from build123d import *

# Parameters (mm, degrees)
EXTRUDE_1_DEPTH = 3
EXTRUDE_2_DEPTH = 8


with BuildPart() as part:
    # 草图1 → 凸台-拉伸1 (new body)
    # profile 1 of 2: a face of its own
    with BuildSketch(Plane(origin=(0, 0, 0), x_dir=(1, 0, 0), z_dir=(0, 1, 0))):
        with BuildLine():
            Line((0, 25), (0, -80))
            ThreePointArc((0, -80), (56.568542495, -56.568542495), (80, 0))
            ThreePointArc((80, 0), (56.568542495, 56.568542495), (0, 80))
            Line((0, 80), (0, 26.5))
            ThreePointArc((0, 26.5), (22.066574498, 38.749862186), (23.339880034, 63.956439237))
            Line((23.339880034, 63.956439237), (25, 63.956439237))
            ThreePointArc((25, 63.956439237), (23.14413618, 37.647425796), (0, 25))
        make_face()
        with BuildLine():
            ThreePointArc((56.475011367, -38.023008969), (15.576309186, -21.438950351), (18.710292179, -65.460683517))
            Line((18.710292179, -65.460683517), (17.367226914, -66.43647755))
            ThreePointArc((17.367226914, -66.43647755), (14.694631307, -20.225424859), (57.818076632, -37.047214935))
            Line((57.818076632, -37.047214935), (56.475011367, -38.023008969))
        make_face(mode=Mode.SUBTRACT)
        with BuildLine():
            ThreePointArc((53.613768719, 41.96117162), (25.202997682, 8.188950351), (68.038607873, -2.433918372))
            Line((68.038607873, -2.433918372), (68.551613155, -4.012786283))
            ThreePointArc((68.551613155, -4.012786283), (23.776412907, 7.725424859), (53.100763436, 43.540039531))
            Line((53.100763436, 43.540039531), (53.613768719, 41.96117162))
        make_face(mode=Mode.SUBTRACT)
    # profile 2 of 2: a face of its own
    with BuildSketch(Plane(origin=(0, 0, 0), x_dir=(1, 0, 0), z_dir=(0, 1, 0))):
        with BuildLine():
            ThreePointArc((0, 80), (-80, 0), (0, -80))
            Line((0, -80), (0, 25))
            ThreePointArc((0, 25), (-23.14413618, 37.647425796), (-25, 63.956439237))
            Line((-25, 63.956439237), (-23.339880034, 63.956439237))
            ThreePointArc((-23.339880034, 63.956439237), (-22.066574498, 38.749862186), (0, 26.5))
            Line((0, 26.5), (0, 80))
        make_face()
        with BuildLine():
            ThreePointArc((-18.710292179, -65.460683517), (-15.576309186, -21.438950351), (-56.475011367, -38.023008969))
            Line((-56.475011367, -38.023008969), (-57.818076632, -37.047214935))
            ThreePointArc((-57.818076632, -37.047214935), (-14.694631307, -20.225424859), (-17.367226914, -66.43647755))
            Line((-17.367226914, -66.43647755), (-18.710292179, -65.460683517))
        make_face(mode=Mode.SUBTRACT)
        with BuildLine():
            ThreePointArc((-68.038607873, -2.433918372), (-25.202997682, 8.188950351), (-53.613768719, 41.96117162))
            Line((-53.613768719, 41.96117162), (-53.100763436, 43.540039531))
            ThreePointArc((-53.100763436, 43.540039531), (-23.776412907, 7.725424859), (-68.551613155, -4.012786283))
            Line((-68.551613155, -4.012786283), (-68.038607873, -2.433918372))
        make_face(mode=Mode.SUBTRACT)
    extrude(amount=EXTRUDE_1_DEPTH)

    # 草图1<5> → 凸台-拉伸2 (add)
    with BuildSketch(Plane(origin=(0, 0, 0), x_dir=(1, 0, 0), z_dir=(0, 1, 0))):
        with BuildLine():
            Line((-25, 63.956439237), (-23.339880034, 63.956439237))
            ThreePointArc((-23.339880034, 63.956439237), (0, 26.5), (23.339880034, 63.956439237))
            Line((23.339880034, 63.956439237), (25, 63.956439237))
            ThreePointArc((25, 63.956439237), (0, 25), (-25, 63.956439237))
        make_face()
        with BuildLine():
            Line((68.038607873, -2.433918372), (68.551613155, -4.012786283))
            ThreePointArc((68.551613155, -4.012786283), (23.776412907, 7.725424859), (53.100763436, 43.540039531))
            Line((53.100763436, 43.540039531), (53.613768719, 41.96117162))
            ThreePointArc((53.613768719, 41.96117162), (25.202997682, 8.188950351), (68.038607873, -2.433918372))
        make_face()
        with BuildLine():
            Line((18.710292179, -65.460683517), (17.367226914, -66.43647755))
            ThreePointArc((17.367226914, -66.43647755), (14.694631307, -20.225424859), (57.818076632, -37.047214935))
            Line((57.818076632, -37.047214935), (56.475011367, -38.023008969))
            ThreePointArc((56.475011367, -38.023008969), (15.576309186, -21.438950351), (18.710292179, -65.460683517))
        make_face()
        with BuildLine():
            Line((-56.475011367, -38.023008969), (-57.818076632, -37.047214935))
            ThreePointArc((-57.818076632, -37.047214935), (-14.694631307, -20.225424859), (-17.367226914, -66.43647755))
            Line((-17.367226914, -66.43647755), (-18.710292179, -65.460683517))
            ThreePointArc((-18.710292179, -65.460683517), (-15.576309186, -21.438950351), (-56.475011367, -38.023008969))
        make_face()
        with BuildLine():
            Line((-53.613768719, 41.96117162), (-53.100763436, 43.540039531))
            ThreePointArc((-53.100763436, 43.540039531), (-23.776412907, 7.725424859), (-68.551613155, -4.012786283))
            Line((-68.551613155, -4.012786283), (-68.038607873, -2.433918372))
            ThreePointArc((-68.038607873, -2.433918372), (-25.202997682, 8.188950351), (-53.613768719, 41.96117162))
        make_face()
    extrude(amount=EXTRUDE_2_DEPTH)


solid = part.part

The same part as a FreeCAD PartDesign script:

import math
import FreeCAD as App
import Part
import Sketcher
from FreeCAD import Vector
Q = App.Units.Quantity

doc = App.newDocument("Part")
params = doc.addObject("Spreadsheet::Sheet", "Params")
for row, (alias, value) in enumerate([
    ("sketch1_radius", "80 mm"),
    ("sketch1_radius2", "26 mm"),
    ("sketch1_radius3", "27.5 mm"),
    ("pad1_length", "3 mm"),
    ("sketch2_radius", "26 mm"),
    ("sketch2_radius2", "27.5 mm"),
    ("pad2_length", "8 mm"),
], start=1):
    params.set(f"A{row}", alias)
    params.set(f"B{row}", "=" + value)
    params.setAlias(f"B{row}", alias)

body = doc.addObject("PartDesign::Body", "Body")

sketch1 = body.newObject("Sketcher::SketchObject", "Sketch")
sketch1.AttachmentSupport = (doc.getObject("XZ_Plane"), [""])
sketch1.MapMode = "FlatFace"
sketch1.addGeometry([
    Part.ArcOfCircle(Part.Circle(Vector(0, 0, 0), Vector(0, 0, 1), 80), math.radians(0), math.radians(90)),
    Part.ArcOfCircle(Part.Circle(Vector(0, 0, 0), Vector(0, 0, 1), 80), math.radians(-90), math.radians(0)),
    Part.ArcOfCircle(Part.Circle(Vector(0, 0, 0), Vector(0, 0, 1), 80), math.radians(90), math.radians(270)),
    Part.ArcOfCircle(Part.Circle(Vector(0, -52.5, 0), Vector(0, 0, 1), 27.5), math.radians(-24.619977), math.radians(90)),
    Part.ArcOfCircle(Part.Circle(Vector(0, -52.5, 0), Vector(0, 0, 1), 27.5), math.radians(90), math.radians(204.619977)),
    Part.LineSegment(Vector(-25, -63.956439, 0), Vector(-23.33988, -63.956439, 0)),
    Part.ArcOfCircle(Part.Circle(Vector(0, -52.5, 0), Vector(0, 0, 1), 26), math.radians(90), math.radians(206.14423)),
    Part.ArcOfCircle(Part.Circle(Vector(0, -52.5, 0), Vector(0, 0, 1), 26), math.radians(-26.14423), math.radians(90)),
    Part.LineSegment(Vector(23.33988, -63.956439, 0), Vector(25, -63.956439, 0)),
    Part.LineSegment(Vector(57.818077, 37.047215, 0), Vector(56.475011, 38.023009, 0)),
    Part.ArcOfCircle(Part.Circle(Vector(30.858726, 42.473392, 0), Vector(0, 0, 1), 26), math.radians(117.85577), math.radians(350.14423)),
    Part.LineSegment(Vector(18.710292, 65.460684, 0), Vector(17.367227, 66.436478, 0)),
    Part.ArcOfCircle(Part.Circle(Vector(30.858726, 42.473392, 0), Vector(0, 0, 1), 27.5), math.radians(119.380023), math.radians(348.619977)),
    Part.LineSegment(Vector(53.100763, -43.54004, 0), Vector(53.613769, -41.961172, 0)),
    Part.ArcOfCircle(Part.Circle(Vector(49.930467, -16.223392, 0), Vector(0, 0, 1), 26), math.radians(45.85577), math.radians(278.14423)),
    Part.LineSegment(Vector(68.038608, 2.433918, 0), Vector(68.551613, 4.012786, 0)),
    Part.ArcOfCircle(Part.Circle(Vector(49.930467, -16.223392, 0), Vector(0, 0, 1), 27.5), math.radians(47.380023), math.radians(276.619977)),
    Part.LineSegment(Vector(-53.613769, -41.961172, 0), Vector(-53.100763, -43.54004, 0)),
    Part.ArcOfCircle(Part.Circle(Vector(-49.930467, -16.223392, 0), Vector(0, 0, 1), 27.5), math.radians(-96.619977), math.radians(132.619977)),
    Part.LineSegment(Vector(-68.551613, 4.012786, 0), Vector(-68.038608, 2.433918, 0)),
    Part.ArcOfCircle(Part.Circle(Vector(-49.930467, -16.223392, 0), Vector(0, 0, 1), 26), math.radians(-98.14423), math.radians(134.14423)),
    Part.LineSegment(Vector(-17.367227, 66.436478, 0), Vector(-18.710292, 65.460684, 0)),
    Part.ArcOfCircle(Part.Circle(Vector(-30.858726, 42.473392, 0), Vector(0, 0, 1), 26), math.radians(-170.14423), math.radians(62.14423)),
    Part.LineSegment(Vector(-56.475011, 38.023009, 0), Vector(-57.818077, 37.047215, 0)),
    Part.ArcOfCircle(Part.Circle(Vector(-30.858726, 42.473392, 0), Vector(0, 0, 1), 27.5), math.radians(-168.619977), math.radians(60.619977)),
], False)
sketch1.addConstraint([
    Sketcher.Constraint("Tangent", 0, 1, 1, 2),
    Sketcher.Constraint("Tangent", 1, 1, 2, 2),
    Sketcher.Constraint("Tangent", 2, 1, 0, 2),
    Sketcher.Constraint("Tangent", 3, 2, 4, 1),
    Sketcher.Constraint("Coincident", 4, 2, 5, 1),
    Sketcher.Constraint("Coincident", 5, 2, 6, 2),
    Sketcher.Constraint("Tangent", 6, 1, 7, 2),
    Sketcher.Constraint("Coincident", 7, 1, 8, 1),
    Sketcher.Constraint("Coincident", 8, 2, 3, 1),
    Sketcher.Constraint("Coincident", 9, 2, 10, 2),
    Sketcher.Constraint("Coincident", 10, 1, 11, 1),
    Sketcher.Constraint("Coincident", 11, 2, 12, 1),
    Sketcher.Constraint("Coincident", 12, 2, 9, 1),
    Sketcher.Constraint("Coincident", 13, 2, 14, 2),
    Sketcher.Constraint("Coincident", 14, 1, 15, 1),
    Sketcher.Constraint("Coincident", 15, 2, 16, 1),
    Sketcher.Constraint("Coincident", 16, 2, 13, 1),
    Sketcher.Constraint("Coincident", 17, 2, 18, 1),
    Sketcher.Constraint("Coincident", 18, 2, 19, 1),
    Sketcher.Constraint("Coincident", 19, 2, 20, 2),
    Sketcher.Constraint("Coincident", 20, 1, 17, 1),
    Sketcher.Constraint("Coincident", 21, 2, 22, 2),
    Sketcher.Constraint("Coincident", 22, 1, 23, 1),
    Sketcher.Constraint("Coincident", 23, 2, 24, 1),
    Sketcher.Constraint("Coincident", 24, 2, 21, 1),
    Sketcher.Constraint("Horizontal", 5),
    Sketcher.Constraint("Horizontal", 8),
    Sketcher.Constraint("Coincident", 0, 3, -1, 1),
    Sketcher.Constraint("Coincident", 6, 3, 3, 3),
    Sketcher.Constraint("Coincident", 12, 3, 10, 3),
    Sketcher.Constraint("Coincident", 16, 3, 14, 3),
    Sketcher.Constraint("Coincident", 20, 3, 18, 3),
    Sketcher.Constraint("Coincident", 24, 3, 22, 3),
    Sketcher.Constraint("Equal", 3, 4),
    Sketcher.Constraint("Equal", 6, 7),
    Sketcher.Constraint("Equal", 7, 10),
    Sketcher.Constraint("Equal", 4, 12),
    Sketcher.Constraint("Equal", 10, 14),
    Sketcher.Constraint("Equal", 12, 16),
    Sketcher.Constraint("Equal", 16, 18),
    Sketcher.Constraint("Equal", 14, 20),
    Sketcher.Constraint("Equal", 20, 22),
    Sketcher.Constraint("Equal", 18, 24),
    Sketcher.Constraint("Symmetric", 14, 3, 18, 3, -2),
    Sketcher.Constraint("Symmetric", 10, 3, 22, 3, -2),
    Sketcher.Constraint("Symmetric", 5, 2, 7, 1, -2),
    Sketcher.Constraint("PointOnObject", 0, 1, -1),
    Sketcher.Constraint("PointOnObject", 1, 1, -2),
    Sketcher.Constraint("PointOnObject", 2, 1, -2),
    Sketcher.Constraint("PointOnObject", 3, 2, -2),
    Sketcher.Constraint("PointOnObject", 6, 1, -2),
    Sketcher.Constraint("Parallel", 9, 11),
    Sketcher.Constraint("Parallel", 13, 15),
    Sketcher.Constraint("Parallel", 17, 19),
    Sketcher.Constraint("Parallel", 21, 23),
    Sketcher.Constraint("Horizontal", 16, 2, 17, 2),
    Sketcher.Constraint("Horizontal", 15, 2, 18, 2),
    Sketcher.Constraint("Horizontal", 14, 1, 19, 2),
    Sketcher.Constraint("Horizontal", 10, 1, 21, 2),
    Sketcher.Constraint("Horizontal", 9, 2, 22, 1),
    Sketcher.Constraint("Horizontal", 12, 2, 23, 2),
    Sketcher.Constraint("Equal", 9, 11),
    Sketcher.Constraint("Equal", 11, 13),
    Sketcher.Constraint("Equal", 13, 15),
    Sketcher.Constraint("Radius", 0, Q("80 mm")),
    Sketcher.Constraint("Radius", 6, Q("26 mm")),
    Sketcher.Constraint("Radius", 3, Q("27.5 mm")),
    Sketcher.Constraint("Angle", 9, Q("144 deg")),
    Sketcher.Constraint("Angle", 13, Q("72 deg")),
    Sketcher.Constraint("DistanceY", 3, 2, -1, 1, Q("25 mm")),
    Sketcher.Constraint("DistanceX", 4, 2, -1, 1, Q("25 mm")),
    Sketcher.Constraint("DistanceY", 16, 3, 9, 2, Q("54.246401 mm")),
    Sketcher.Constraint("DistanceX", 11, 2, 10, 3, Q("13.491499 mm")),
    Sketcher.Constraint("DistanceY", 8, 2, 16, 2, Q("20.4164 mm")),
    Sketcher.Constraint("DistanceX", 18, 2, 22, 1, Q("12.076602 mm")),
    Sketcher.Constraint("DistanceX", -1, 1, 9, 2, Q("56.475011 mm")),
])
sketch1.setExpression("Constraints[64]", "Params.sketch1_radius")
sketch1.setExpression("Constraints[65]", "Params.sketch1_radius2")
sketch1.setExpression("Constraints[66]", "Params.sketch1_radius3")
pad1 = body.newObject("PartDesign::Pad", "Pad")
pad1.Profile = sketch1
pad1.setExpression("Length", "Params.pad1_length")
pad1.Reversed = True

sketch2 = body.newObject("Sketcher::SketchObject", "Sketch001")
sketch2.AttachmentSupport = (doc.getObject("XZ_Plane"), [""])
sketch2.MapMode = "FlatFace"
sketch2.addGeometry([
    Part.LineSegment(Vector(-23.33988, -63.956439, 0), Vector(-25, -63.956439, 0)),
    Part.ArcOfCircle(Part.Circle(Vector(0, -52.5, 0), Vector(0, 0, 1), 27.5), math.radians(-24.619977), math.radians(204.619977)),
    Part.LineSegment(Vector(25, -63.956439, 0), Vector(23.33988, -63.956439, 0)),
    Part.ArcOfCircle(Part.Circle(Vector(0, -52.5, 0), Vector(0, 0, 1), 26), math.radians(-26.14423), math.radians(206.14423)),
    Part.LineSegment(Vector(68.551613, 4.012786, 0), Vector(68.038608, 2.433918, 0)),
    Part.ArcOfCircle(Part.Circle(Vector(49.930467, -16.223392, 0), Vector(0, 0, 1), 26), math.radians(45.85577), math.radians(278.14423)),
    Part.LineSegment(Vector(53.613769, -41.961172, 0), Vector(53.100763, -43.54004, 0)),
    Part.ArcOfCircle(Part.Circle(Vector(49.930467, -16.223392, 0), Vector(0, 0, 1), 27.5), math.radians(47.380023), math.radians(276.619977)),
    Part.LineSegment(Vector(17.367227, 66.436478, 0), Vector(18.710292, 65.460684, 0)),
    Part.ArcOfCircle(Part.Circle(Vector(30.858726, 42.473392, 0), Vector(0, 0, 1), 26), math.radians(117.85577), math.radians(350.14423)),
    Part.LineSegment(Vector(56.475011, 38.023009, 0), Vector(57.818077, 37.047215, 0)),
    Part.ArcOfCircle(Part.Circle(Vector(30.858726, 42.473392, 0), Vector(0, 0, 1), 27.5), math.radians(119.380023), math.radians(348.619977)),
    Part.LineSegment(Vector(-57.818077, 37.047215, 0), Vector(-56.475011, 38.023009, 0)),
    Part.ArcOfCircle(Part.Circle(Vector(-30.858726, 42.473392, 0), Vector(0, 0, 1), 26), math.radians(-170.14423), math.radians(62.14423)),
    Part.LineSegment(Vector(-18.710292, 65.460684, 0), Vector(-17.367227, 66.436478, 0)),
    Part.ArcOfCircle(Part.Circle(Vector(-30.858726, 42.473392, 0), Vector(0, 0, 1), 27.5), math.radians(-168.619977), math.radians(60.619977)),
    Part.LineSegment(Vector(-53.100763, -43.54004, 0), Vector(-53.613769, -41.961172, 0)),
    Part.ArcOfCircle(Part.Circle(Vector(-49.930467, -16.223392, 0), Vector(0, 0, 1), 26), math.radians(-98.14423), math.radians(134.14423)),
    Part.LineSegment(Vector(-68.038608, 2.433918, 0), Vector(-68.551613, 4.012786, 0)),
    Part.ArcOfCircle(Part.Circle(Vector(-49.930467, -16.223392, 0), Vector(0, 0, 1), 27.5), math.radians(-96.619977), math.radians(132.619977)),
], False)
sketch2.addConstraint([
    Sketcher.Constraint("Coincident", 0, 2, 1, 2),
    Sketcher.Constraint("Coincident", 1, 1, 2, 1),
    Sketcher.Constraint("Coincident", 2, 2, 3, 1),
    Sketcher.Constraint("Coincident", 3, 2, 0, 1),
    Sketcher.Constraint("Coincident", 4, 2, 5, 1),
    Sketcher.Constraint("Coincident", 5, 2, 6, 1),
    Sketcher.Constraint("Coincident", 6, 2, 7, 2),
    Sketcher.Constraint("Coincident", 7, 1, 4, 1),
    Sketcher.Constraint("Coincident", 8, 2, 9, 1),
    Sketcher.Constraint("Coincident", 9, 2, 10, 1),
    Sketcher.Constraint("Coincident", 10, 2, 11, 2),
    Sketcher.Constraint("Coincident", 11, 1, 8, 1),
    Sketcher.Constraint("Coincident", 12, 2, 13, 1),
    Sketcher.Constraint("Coincident", 13, 2, 14, 1),
    Sketcher.Constraint("Coincident", 14, 2, 15, 2),
    Sketcher.Constraint("Coincident", 15, 1, 12, 1),
    Sketcher.Constraint("Coincident", 16, 2, 17, 1),
    Sketcher.Constraint("Coincident", 17, 2, 18, 1),
    Sketcher.Constraint("Coincident", 18, 2, 19, 2),
    Sketcher.Constraint("Coincident", 19, 1, 16, 1),
    Sketcher.Constraint("Horizontal", 0),
    Sketcher.Constraint("Horizontal", 2),
    Sketcher.Constraint("Coincident", 3, 3, 1, 3),
    Sketcher.Constraint("Coincident", 7, 3, 5, 3),
    Sketcher.Constraint("Coincident", 11, 3, 9, 3),
    Sketcher.Constraint("Coincident", 15, 3, 13, 3),
    Sketcher.Constraint("Coincident", 19, 3, 17, 3),
    Sketcher.Constraint("Equal", 3, 5),
    Sketcher.Constraint("Equal", 1, 7),
    Sketcher.Constraint("Equal", 5, 9),
    Sketcher.Constraint("Equal", 7, 11),
    Sketcher.Constraint("Equal", 9, 13),
    Sketcher.Constraint("Equal", 11, 15),
    Sketcher.Constraint("Equal", 13, 17),
    Sketcher.Constraint("Equal", 15, 19),
    Sketcher.Constraint("Symmetric", 9, 3, 13, 3, -2),
    Sketcher.Constraint("Symmetric", 5, 3, 17, 3, -2),
    Sketcher.Constraint("Symmetric", 0, 2, 1, 1, -2),
    Sketcher.Constraint("Parallel", 4, 6),
    Sketcher.Constraint("Parallel", 8, 10),
    Sketcher.Constraint("Parallel", 12, 14),
    Sketcher.Constraint("Parallel", 16, 18),
    Sketcher.Constraint("Horizontal", 9, 2, 12, 2),
    Sketcher.Constraint("Horizontal", 8, 2, 13, 2),
    Sketcher.Constraint("Horizontal", 11, 1, 14, 2),
    Sketcher.Constraint("Horizontal", 5, 2, 16, 2),
    Sketcher.Constraint("Horizontal", 4, 2, 17, 2),
    Sketcher.Constraint("Horizontal", 7, 1, 18, 2),
    Sketcher.Constraint("Equal", 4, 6),
    Sketcher.Constraint("Equal", 6, 8),
    Sketcher.Constraint("Equal", 8, 10),
    Sketcher.Constraint("Radius", 3, Q("26 mm")),
    Sketcher.Constraint("Radius", 1, Q("27.5 mm")),
    Sketcher.Constraint("Angle", 4, Q("-108 deg")),
    Sketcher.Constraint("Angle", 8, Q("-36 deg")),
    Sketcher.Constraint("DistanceX", 0, 2, -1, 1, Q("25 mm")),
    Sketcher.Constraint("DistanceY", 1, 3, -1, 1, Q("52.5 mm")),
    Sketcher.Constraint("DistanceX", 5, 3, 5, 2, Q("3.683302 mm")),
    Sketcher.Constraint("DistanceY", 1, 1, 6, 2, Q("20.4164 mm")),
    Sketcher.Constraint("DistanceX", 9, 2, 7, 1, Q("12.076602 mm")),
    Sketcher.Constraint("DistanceY", 19, 3, 12, 2, Q("54.246401 mm")),
    Sketcher.Constraint("DistanceX", -1, 1, 5, 2, Q("53.613769 mm")),
])
sketch2.setExpression("Constraints[51]", "Params.sketch2_radius")
sketch2.setExpression("Constraints[52]", "Params.sketch2_radius2")
pad2 = body.newObject("PartDesign::Pad", "Pad001")
pad2.Profile = sketch2
pad2.setExpression("Length", "Params.pad2_length")
pad2.Reversed = True

doc.recompute()
